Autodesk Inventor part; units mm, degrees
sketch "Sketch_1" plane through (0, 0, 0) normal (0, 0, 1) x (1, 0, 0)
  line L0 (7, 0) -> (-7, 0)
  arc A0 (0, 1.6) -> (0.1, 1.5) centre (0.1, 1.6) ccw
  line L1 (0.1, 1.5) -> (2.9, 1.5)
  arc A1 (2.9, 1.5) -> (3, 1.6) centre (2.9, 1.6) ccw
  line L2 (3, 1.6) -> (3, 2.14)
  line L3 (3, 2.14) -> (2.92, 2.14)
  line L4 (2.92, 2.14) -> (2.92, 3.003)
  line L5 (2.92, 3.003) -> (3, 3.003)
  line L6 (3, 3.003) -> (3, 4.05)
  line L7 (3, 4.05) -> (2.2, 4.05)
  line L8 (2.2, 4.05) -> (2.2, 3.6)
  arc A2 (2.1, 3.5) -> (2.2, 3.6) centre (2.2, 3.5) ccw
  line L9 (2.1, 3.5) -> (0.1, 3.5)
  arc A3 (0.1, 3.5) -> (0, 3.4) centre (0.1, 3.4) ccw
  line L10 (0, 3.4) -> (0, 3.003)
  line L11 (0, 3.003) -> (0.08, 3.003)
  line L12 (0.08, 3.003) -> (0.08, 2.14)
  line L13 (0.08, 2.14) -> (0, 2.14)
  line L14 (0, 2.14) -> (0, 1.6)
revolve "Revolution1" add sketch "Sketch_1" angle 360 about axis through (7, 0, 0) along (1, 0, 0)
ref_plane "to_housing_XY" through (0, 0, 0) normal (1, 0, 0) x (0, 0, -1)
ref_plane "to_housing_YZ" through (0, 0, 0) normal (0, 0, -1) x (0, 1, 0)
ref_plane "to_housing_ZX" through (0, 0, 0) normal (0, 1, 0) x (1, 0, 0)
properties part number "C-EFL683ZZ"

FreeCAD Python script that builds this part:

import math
import FreeCAD as App
import Part
import Sketcher
Q = App.Units.Quantity

doc = App.newDocument("Part")
body = doc.addObject("PartDesign::Body", "Body")

sketch1 = body.newObject("Sketcher::SketchObject", "Sketch")
sketch1.AttachmentSupport = (doc.getObject("XY_Plane"), [""])
sketch1.MapMode = "FlatFace"
sketch1.addGeometry([
    Part.LineSegment(App.Vector(0, 2.14, 0), App.Vector(0, 1.6, 0)),
    Part.ArcOfCircle(Part.Circle(App.Vector(0.1, 1.6, 0), App.Vector(0, 0, 1), 0.1), math.radians(180), math.radians(270)),
    Part.LineSegment(App.Vector(0.1, 1.5, 0), App.Vector(2.9, 1.5, 0)),
    Part.ArcOfCircle(Part.Circle(App.Vector(2.9, 1.6, 0), App.Vector(0, 0, 1), 0.1), math.radians(-90), math.radians(0)),
    Part.LineSegment(App.Vector(3, 1.6, 0), App.Vector(3, 2.14, 0)),
    Part.LineSegment(App.Vector(3, 2.14, 0), App.Vector(2.92, 2.14, 0)),
    Part.LineSegment(App.Vector(2.92, 2.14, 0), App.Vector(2.92, 3.003, 0)),
    Part.LineSegment(App.Vector(2.92, 3.003, 0), App.Vector(3, 3.003, 0)),
    Part.LineSegment(App.Vector(3, 3.003, 0), App.Vector(3, 4.05, 0)),
    Part.LineSegment(App.Vector(3, 4.05, 0), App.Vector(2.2, 4.05, 0)),
    Part.LineSegment(App.Vector(2.2, 4.05, 0), App.Vector(2.2, 3.6, 0)),
    Part.ArcOfCircle(Part.Circle(App.Vector(2.2, 3.5, 0), App.Vector(0, 0, 1), 0.1), math.radians(180), math.radians(450)),
    Part.LineSegment(App.Vector(2.1, 3.5, 0), App.Vector(0.1, 3.5, 0)),
    Part.ArcOfCircle(Part.Circle(App.Vector(0.1, 3.4, 0), App.Vector(0, 0, 1), 0.1), math.radians(90), math.radians(180)),
    Part.LineSegment(App.Vector(0, 3.4, 0), App.Vector(0, 3.003, 0)),
    Part.LineSegment(App.Vector(0, 3.003, 0), App.Vector(0.08, 3.003, 0)),
    Part.LineSegment(App.Vector(0.08, 3.003, 0), App.Vector(0.08, 2.14, 0)),
    Part.LineSegment(App.Vector(0.08, 2.14, 0), App.Vector(0, 2.14, 0)),
], False)
sketch1.addConstraint([
    Sketcher.Constraint("Tangent", 0, 2, 1, 1),
    Sketcher.Constraint("Tangent", 1, 2, 2, 1),
    Sketcher.Constraint("Tangent", 2, 2, 3, 1),
    Sketcher.Constraint("Tangent", 3, 2, 4, 1),
    Sketcher.Constraint("Coincident", 4, 2, 5, 1),
    Sketcher.Constraint("Coincident", 5, 2, 6, 1),
    Sketcher.Constraint("Coincident", 6, 2, 7, 1),
    Sketcher.Constraint("Coincident", 7, 2, 8, 1),
    Sketcher.Constraint("Coincident", 8, 2, 9, 1),
    Sketcher.Constraint("Coincident", 9, 2, 10, 1),
    Sketcher.Constraint("Coincident", 10, 2, 11, 2),
    Sketcher.Constraint("Coincident", 11, 1, 12, 1),
    Sketcher.Constraint("Tangent", 12, 2, 13, 1),
    Sketcher.Constraint("Tangent", 13, 2, 14, 1),
    Sketcher.Constraint("Coincident", 14, 2, 15, 1),
    Sketcher.Constraint("Coincident", 15, 2, 16, 1),
    Sketcher.Constraint("Coincident", 16, 2, 17, 1),
    Sketcher.Constraint("Coincident", 17, 2, 0, 1),
    Sketcher.Constraint("Vertical", 0),
    Sketcher.Constraint("Horizontal", 2),
    Sketcher.Constraint("Vertical", 4),
    Sketcher.Constraint("Horizontal", 5),
    Sketcher.Constraint("Vertical", 6),
    Sketcher.Constraint("Horizontal", 7),
    Sketcher.Constraint("Vertical", 8),
    Sketcher.Constraint("Horizontal", 9),
    Sketcher.Constraint("Vertical", 10),
    Sketcher.Constraint("Horizontal", 12),
    Sketcher.Constraint("Vertical", 14),
    Sketcher.Constraint("Horizontal", 15),
    Sketcher.Constraint("Vertical", 16),
    Sketcher.Constraint("Horizontal", 17),
    Sketcher.Constraint("Equal", 1, 3),
    Sketcher.Constraint("Equal", 3, 11),
    Sketcher.Constraint("Equal", 11, 13),
    Sketcher.Constraint("PointOnObject", 0, 2, -2),
    Sketcher.Constraint("PointOnObject", 13, 2, -2),
    Sketcher.Constraint("Horizontal", 7, 2, 14, 2),
    Sketcher.Constraint("Horizontal", 5, 2, 16, 2),
    Sketcher.Constraint("Vertical", 4, 2, 7, 2),
    Sketcher.Constraint("Vertical", 11, 3, 9, 2),
    Sketcher.Constraint("Equal", 7, 15),
    Sketcher.Constraint("Radius", 1, Q("0.1 mm")),
    Sketcher.Constraint("DistanceX", 12, 2, 12, 1, Q("2 mm")),
    Sketcher.Constraint("DistanceX", 2, 1, 2, 2, Q("2.8 mm")),
    Sketcher.Constraint("DistanceY", 1, 2, 11, 3, Q("2 mm")),
    Sketcher.Constraint("DistanceY", 1, 2, 12, 2, Q("2 mm")),
    Sketcher.Constraint("DistanceX", 5, 2, 5, 1, Q("0.08 mm")),
    Sketcher.Constraint("DistanceY", 0, 2, 0, 1, Q("0.54 mm")),
    Sketcher.Constraint("DistanceY", 10, 2, 10, 1, Q("0.45 mm")),
    Sketcher.Constraint("DistanceY", -1, 1, 1, 3, Q("1.6 mm")),
    Sketcher.Constraint("DistanceY", 6, 1, 6, 2, Q("0.863 mm")),
])
revolution = body.newObject("PartDesign::Revolution", "Revolution")
revolution.Profile = sketch1
revolution.ReferenceAxis = (sketch1, ["H_Axis"])
revolution.Angle = 360

doc.recompute()
